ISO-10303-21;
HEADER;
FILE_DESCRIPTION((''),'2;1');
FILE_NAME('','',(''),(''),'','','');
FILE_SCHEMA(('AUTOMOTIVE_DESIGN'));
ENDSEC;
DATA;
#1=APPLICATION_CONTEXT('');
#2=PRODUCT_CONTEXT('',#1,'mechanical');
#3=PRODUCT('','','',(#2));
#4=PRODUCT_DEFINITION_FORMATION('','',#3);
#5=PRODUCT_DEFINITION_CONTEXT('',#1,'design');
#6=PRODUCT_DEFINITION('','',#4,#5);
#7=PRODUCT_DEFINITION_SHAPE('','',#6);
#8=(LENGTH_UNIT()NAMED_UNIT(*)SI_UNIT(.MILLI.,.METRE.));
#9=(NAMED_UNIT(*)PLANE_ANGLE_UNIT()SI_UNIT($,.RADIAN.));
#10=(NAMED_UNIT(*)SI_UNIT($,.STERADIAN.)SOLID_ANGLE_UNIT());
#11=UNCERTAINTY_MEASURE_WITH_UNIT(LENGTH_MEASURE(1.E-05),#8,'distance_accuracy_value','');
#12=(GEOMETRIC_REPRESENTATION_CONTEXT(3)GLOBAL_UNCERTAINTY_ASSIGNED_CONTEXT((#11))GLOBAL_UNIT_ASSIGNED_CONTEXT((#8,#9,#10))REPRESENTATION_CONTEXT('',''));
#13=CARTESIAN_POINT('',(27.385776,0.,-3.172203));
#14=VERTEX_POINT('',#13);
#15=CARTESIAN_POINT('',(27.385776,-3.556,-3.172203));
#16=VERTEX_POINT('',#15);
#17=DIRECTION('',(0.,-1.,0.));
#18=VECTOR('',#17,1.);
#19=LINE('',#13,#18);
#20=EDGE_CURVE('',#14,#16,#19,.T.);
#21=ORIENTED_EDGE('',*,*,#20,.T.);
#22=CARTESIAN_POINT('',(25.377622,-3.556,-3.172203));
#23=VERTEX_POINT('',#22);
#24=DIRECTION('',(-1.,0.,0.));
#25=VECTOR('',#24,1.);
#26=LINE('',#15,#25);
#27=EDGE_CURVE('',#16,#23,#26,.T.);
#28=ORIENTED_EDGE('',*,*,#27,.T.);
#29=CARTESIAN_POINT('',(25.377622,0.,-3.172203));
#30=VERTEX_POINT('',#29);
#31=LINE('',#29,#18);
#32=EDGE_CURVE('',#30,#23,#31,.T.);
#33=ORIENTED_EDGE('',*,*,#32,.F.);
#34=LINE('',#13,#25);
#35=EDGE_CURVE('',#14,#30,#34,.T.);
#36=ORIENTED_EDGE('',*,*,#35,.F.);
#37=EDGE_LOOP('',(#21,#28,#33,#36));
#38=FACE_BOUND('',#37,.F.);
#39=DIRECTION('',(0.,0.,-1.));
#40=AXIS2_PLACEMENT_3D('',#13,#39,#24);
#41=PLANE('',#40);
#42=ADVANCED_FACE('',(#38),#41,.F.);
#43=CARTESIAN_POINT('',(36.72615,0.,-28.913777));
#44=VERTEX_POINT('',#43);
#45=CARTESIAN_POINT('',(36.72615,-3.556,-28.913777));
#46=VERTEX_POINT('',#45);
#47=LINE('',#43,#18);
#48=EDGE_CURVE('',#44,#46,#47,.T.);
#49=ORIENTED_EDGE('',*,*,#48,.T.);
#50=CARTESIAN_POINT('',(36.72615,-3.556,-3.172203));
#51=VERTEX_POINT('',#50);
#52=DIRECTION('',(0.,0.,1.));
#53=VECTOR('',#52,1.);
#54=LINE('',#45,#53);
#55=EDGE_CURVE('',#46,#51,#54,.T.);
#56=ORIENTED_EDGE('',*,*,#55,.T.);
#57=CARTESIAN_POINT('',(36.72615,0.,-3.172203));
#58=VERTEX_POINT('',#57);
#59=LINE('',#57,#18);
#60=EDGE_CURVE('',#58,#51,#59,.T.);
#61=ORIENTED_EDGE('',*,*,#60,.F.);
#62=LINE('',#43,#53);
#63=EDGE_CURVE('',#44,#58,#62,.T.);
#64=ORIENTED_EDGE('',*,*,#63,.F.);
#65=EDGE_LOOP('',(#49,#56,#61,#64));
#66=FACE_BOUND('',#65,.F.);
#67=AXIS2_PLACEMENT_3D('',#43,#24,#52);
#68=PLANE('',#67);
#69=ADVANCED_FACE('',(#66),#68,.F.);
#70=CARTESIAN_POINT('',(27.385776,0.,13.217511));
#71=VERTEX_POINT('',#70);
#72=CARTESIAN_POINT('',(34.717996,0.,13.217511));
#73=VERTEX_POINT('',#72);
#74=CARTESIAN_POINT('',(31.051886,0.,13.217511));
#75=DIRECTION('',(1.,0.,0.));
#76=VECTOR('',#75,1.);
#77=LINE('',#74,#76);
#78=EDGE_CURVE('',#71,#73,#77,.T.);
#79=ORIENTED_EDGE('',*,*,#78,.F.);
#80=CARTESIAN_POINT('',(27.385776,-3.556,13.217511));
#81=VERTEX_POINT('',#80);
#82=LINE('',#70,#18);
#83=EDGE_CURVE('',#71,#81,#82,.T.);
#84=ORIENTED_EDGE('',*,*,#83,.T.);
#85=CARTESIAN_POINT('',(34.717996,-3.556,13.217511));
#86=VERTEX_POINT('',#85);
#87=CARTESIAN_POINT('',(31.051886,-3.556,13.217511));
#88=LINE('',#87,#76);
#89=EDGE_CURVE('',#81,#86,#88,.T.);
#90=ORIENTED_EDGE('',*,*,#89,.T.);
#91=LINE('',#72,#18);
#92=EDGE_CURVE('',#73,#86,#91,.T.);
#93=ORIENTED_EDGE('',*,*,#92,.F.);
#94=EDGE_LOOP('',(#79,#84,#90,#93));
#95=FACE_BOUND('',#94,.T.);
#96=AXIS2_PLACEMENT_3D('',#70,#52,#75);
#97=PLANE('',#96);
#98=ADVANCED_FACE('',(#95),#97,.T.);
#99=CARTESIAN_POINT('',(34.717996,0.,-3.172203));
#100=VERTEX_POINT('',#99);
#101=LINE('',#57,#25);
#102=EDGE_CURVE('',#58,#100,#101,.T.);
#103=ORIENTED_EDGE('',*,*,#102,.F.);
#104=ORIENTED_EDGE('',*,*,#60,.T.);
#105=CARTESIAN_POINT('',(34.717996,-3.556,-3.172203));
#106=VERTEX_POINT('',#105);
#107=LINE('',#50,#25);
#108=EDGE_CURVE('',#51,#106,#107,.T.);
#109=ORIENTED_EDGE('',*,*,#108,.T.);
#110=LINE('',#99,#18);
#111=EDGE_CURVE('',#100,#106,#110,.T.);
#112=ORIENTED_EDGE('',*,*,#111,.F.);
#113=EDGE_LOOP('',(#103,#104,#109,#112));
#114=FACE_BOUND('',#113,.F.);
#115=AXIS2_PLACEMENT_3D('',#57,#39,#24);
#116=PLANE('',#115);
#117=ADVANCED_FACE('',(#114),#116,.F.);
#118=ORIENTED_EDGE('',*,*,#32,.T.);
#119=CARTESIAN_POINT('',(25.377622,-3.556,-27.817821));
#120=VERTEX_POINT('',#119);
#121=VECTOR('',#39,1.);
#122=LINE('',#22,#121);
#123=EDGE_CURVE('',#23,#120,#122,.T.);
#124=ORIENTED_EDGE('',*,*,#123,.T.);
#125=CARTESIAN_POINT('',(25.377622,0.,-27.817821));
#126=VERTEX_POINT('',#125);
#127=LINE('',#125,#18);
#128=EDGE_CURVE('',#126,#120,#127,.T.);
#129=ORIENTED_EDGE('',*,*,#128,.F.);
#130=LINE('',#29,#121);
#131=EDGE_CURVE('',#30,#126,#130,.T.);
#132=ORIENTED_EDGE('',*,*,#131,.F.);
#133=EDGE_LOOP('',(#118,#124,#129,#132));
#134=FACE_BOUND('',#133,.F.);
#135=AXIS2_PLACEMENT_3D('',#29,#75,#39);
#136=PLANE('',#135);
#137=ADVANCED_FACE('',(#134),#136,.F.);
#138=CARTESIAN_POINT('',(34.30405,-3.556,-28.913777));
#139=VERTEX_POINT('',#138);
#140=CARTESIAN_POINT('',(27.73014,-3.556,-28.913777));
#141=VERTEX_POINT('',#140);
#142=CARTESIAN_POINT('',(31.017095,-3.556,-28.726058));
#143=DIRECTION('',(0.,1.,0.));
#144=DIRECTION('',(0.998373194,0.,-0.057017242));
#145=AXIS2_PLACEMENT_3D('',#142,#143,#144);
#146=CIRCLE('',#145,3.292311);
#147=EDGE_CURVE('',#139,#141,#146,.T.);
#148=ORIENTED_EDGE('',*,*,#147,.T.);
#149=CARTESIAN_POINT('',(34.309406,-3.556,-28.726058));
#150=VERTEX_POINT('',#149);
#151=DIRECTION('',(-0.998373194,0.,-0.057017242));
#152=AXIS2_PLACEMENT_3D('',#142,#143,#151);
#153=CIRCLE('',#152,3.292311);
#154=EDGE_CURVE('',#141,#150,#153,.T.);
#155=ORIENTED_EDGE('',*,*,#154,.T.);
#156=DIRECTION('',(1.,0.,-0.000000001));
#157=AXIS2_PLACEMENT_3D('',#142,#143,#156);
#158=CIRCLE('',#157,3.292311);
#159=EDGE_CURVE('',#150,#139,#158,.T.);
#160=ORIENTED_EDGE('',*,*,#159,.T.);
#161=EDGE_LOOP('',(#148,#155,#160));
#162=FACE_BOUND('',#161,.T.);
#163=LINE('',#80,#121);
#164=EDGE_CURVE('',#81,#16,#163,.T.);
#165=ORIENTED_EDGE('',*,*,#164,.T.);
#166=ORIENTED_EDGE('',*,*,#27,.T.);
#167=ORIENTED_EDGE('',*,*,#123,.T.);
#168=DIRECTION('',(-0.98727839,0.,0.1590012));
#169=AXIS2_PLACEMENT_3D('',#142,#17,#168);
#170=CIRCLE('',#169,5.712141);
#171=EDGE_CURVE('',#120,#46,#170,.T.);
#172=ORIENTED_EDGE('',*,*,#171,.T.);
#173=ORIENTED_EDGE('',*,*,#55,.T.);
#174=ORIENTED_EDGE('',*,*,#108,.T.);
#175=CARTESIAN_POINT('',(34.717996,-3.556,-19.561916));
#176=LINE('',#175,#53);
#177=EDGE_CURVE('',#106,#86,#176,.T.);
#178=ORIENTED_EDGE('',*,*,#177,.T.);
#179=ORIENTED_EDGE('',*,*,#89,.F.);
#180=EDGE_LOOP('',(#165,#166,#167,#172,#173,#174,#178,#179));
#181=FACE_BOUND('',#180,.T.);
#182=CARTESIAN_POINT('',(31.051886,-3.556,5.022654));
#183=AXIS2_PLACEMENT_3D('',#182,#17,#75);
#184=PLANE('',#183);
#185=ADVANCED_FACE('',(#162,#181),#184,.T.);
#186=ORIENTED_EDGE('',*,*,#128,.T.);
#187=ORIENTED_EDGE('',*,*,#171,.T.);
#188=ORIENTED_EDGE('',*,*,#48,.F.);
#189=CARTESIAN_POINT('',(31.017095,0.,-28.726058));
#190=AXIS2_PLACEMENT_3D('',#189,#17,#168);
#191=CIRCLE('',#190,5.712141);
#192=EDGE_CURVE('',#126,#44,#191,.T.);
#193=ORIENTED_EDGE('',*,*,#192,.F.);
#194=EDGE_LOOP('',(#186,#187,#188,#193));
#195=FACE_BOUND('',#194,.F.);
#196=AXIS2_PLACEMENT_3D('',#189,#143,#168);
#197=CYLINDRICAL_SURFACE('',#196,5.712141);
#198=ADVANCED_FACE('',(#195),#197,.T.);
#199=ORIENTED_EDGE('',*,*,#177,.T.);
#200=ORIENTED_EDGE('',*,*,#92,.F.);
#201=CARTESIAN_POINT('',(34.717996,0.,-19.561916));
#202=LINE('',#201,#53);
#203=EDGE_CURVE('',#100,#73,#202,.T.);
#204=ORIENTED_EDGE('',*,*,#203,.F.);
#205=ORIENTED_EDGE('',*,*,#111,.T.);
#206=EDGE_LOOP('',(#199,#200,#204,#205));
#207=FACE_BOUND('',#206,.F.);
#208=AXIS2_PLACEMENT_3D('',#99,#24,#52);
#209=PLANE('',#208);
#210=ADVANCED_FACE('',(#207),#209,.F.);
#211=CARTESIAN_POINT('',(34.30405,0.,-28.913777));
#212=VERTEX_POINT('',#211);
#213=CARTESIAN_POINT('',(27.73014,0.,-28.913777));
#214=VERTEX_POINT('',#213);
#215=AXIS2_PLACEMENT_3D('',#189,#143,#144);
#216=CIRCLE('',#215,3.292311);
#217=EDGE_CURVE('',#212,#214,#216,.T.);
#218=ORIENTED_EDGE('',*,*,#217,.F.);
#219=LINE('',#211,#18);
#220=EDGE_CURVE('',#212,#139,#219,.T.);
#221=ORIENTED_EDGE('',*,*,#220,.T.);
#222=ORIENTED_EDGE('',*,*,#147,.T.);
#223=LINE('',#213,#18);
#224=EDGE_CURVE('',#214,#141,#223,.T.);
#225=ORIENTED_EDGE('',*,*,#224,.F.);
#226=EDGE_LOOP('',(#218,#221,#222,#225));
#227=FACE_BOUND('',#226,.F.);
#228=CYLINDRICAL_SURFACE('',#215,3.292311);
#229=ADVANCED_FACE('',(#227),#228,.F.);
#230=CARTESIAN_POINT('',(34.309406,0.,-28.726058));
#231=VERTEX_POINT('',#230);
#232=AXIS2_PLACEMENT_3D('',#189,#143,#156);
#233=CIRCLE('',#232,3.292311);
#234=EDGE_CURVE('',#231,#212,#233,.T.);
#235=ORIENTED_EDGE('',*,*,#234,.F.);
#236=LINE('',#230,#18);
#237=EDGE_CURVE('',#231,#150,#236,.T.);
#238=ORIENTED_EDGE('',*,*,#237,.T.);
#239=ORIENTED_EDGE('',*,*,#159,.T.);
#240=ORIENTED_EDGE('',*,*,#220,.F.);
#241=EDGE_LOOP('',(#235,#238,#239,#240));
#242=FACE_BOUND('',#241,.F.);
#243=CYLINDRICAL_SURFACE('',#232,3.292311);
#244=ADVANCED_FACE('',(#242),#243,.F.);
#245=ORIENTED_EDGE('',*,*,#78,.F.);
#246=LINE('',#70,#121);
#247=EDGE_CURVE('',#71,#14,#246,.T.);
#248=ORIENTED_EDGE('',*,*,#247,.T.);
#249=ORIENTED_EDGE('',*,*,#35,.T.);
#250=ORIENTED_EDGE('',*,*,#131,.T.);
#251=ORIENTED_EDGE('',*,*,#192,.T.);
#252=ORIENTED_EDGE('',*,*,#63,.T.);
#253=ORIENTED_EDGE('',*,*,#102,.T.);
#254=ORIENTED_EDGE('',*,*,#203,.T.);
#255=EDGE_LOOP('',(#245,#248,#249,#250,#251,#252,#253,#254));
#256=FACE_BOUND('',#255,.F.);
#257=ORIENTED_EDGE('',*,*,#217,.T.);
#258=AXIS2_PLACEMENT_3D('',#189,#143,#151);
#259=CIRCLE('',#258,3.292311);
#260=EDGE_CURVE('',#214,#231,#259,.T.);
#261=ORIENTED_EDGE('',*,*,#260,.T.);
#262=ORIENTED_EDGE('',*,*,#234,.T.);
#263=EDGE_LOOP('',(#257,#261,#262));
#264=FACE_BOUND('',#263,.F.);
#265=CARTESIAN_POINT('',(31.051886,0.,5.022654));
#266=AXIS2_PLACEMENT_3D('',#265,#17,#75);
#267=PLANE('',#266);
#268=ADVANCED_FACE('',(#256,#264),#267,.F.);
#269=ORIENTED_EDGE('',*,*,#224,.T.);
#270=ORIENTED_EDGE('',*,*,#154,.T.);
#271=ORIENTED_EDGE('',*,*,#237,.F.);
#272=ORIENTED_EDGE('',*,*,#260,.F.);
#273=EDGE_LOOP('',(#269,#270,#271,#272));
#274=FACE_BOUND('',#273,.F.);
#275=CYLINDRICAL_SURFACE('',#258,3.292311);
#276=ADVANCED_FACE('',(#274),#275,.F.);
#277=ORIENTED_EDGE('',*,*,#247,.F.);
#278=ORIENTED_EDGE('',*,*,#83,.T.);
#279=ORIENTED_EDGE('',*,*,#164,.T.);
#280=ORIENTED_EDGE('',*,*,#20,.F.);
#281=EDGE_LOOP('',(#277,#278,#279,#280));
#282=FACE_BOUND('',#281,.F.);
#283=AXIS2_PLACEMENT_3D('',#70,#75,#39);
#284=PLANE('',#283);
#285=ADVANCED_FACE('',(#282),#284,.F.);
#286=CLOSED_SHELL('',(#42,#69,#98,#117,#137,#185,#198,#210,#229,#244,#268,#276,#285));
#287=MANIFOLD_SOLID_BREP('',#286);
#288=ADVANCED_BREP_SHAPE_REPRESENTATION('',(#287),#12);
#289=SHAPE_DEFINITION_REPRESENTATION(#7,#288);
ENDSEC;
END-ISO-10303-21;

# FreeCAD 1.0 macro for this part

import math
import FreeCAD as App
import Part
import Sketcher
from FreeCAD import Vector
Q = App.Units.Quantity

doc = App.newDocument("Part")
body = doc.addObject("PartDesign::Body", "Body")

sketch1 = body.newObject("Sketcher::SketchObject", "Sketch")
sketch1.AttachmentSupport = (doc.getObject("XZ_Plane"), [""])
sketch1.MapMode = "FlatFace"
sketch1.addGeometry([
    Part.LineSegment(Vector(27.385776, 13.217511, 0), Vector(27.385776, -3.172203, 0)),
    Part.LineSegment(Vector(27.385776, -3.172203, 0), Vector(25.377622, -3.172203, 0)),
    Part.LineSegment(Vector(25.377622, -3.172203, 0), Vector(25.377622, -27.817821, 0)),
    Part.ArcOfCircle(Part.Circle(Vector(31.017095, -28.726058, 0), Vector(0, 0, 1), 5.712141), math.radians(170.851073), math.radians(358.116746)),
    Part.LineSegment(Vector(36.72615, -28.913777, 0), Vector(36.72615, -3.172203, 0)),
    Part.LineSegment(Vector(36.72615, -3.172203, 0), Vector(34.717996, -3.172203, 0)),
    Part.LineSegment(Vector(34.717996, -3.172203, 0), Vector(34.717996, 13.217511, 0)),
    Part.LineSegment(Vector(34.717996, 13.217511, 0), Vector(27.385776, 13.217511, 0)),
    Part.ArcOfCircle(Part.Circle(Vector(31.017095, -28.726058, 0), Vector(0, 0, 1), 3.292311), math.radians(0), math.radians(183.26862)),
    Part.ArcOfCircle(Part.Circle(Vector(31.017095, -28.726058, 0), Vector(0, 0, 1), 3.292311), math.radians(-3.26862), math.radians(0)),
    Part.ArcOfCircle(Part.Circle(Vector(31.017095, -28.726058, 0), Vector(0, 0, 1), 3.292311), math.radians(-176.73138), math.radians(-3.26862)),
], False)
sketch1.addConstraint([
    Sketcher.Constraint("Coincident", 0, 2, 1, 1),
    Sketcher.Constraint("Coincident", 1, 2, 2, 1),
    Sketcher.Constraint("Coincident", 2, 2, 3, 1),
    Sketcher.Constraint("Coincident", 3, 2, 4, 1),
    Sketcher.Constraint("Coincident", 4, 2, 5, 1),
    Sketcher.Constraint("Coincident", 5, 2, 6, 1),
    Sketcher.Constraint("Coincident", 6, 2, 7, 1),
    Sketcher.Constraint("Coincident", 7, 2, 0, 1),
    Sketcher.Constraint("Tangent", 8, 1, 9, 2),
    Sketcher.Constraint("Tangent", 9, 1, 10, 2),
    Sketcher.Constraint("Tangent", 10, 1, 8, 2),
    Sketcher.Constraint("Vertical", 0),
    Sketcher.Constraint("Horizontal", 1),
    Sketcher.Constraint("Vertical", 2),
    Sketcher.Constraint("Vertical", 4),
    Sketcher.Constraint("Horizontal", 5),
    Sketcher.Constraint("Vertical", 6),
    Sketcher.Constraint("Horizontal", 7),
    Sketcher.Constraint("Coincident", 8, 3, 3, 3),
    Sketcher.Constraint("Horizontal", 1, 2, 4, 2),
    Sketcher.Constraint("Horizontal", 10, 3, 8, 1),
    Sketcher.Constraint("Horizontal", 3, 2, 9, 1),
    Sketcher.Constraint("Horizontal", 9, 1, 10, 1),
    Sketcher.Constraint("Equal", 1, 5),
    Sketcher.Constraint("DistanceY", 2, 2, 2, 1, Q("0.9702999 in")),
    Sketcher.Constraint("Radius", 3, Q("5.712141 mm")),
    Sketcher.Constraint("Radius", 8, Q("3.292311 mm")),
    Sketcher.Constraint("DistanceX", 7, 2, 7, 1, Q("7.332219 mm")),
    Sketcher.Constraint("DistanceX", 3, 3, 5, 2, Q("3.700901 mm")),
    Sketcher.Constraint("DistanceX", 9, 1, 3, 2, Q("2.422101 mm")),
    Sketcher.Constraint("DistanceY", 0, 2, 0, 1, Q("16.389713 mm")),
    Sketcher.Constraint("DistanceY", 3, 3, -1, 1, Q("28.726058 mm")),
    Sketcher.Constraint("DistanceX", -1, 1, 1, 2, Q("25.377622 mm")),
])
pad1 = body.newObject("PartDesign::Pad", "Pad")
pad1.Profile = sketch1
pad1.Length = Q("0.14 in")

doc.recompute()
